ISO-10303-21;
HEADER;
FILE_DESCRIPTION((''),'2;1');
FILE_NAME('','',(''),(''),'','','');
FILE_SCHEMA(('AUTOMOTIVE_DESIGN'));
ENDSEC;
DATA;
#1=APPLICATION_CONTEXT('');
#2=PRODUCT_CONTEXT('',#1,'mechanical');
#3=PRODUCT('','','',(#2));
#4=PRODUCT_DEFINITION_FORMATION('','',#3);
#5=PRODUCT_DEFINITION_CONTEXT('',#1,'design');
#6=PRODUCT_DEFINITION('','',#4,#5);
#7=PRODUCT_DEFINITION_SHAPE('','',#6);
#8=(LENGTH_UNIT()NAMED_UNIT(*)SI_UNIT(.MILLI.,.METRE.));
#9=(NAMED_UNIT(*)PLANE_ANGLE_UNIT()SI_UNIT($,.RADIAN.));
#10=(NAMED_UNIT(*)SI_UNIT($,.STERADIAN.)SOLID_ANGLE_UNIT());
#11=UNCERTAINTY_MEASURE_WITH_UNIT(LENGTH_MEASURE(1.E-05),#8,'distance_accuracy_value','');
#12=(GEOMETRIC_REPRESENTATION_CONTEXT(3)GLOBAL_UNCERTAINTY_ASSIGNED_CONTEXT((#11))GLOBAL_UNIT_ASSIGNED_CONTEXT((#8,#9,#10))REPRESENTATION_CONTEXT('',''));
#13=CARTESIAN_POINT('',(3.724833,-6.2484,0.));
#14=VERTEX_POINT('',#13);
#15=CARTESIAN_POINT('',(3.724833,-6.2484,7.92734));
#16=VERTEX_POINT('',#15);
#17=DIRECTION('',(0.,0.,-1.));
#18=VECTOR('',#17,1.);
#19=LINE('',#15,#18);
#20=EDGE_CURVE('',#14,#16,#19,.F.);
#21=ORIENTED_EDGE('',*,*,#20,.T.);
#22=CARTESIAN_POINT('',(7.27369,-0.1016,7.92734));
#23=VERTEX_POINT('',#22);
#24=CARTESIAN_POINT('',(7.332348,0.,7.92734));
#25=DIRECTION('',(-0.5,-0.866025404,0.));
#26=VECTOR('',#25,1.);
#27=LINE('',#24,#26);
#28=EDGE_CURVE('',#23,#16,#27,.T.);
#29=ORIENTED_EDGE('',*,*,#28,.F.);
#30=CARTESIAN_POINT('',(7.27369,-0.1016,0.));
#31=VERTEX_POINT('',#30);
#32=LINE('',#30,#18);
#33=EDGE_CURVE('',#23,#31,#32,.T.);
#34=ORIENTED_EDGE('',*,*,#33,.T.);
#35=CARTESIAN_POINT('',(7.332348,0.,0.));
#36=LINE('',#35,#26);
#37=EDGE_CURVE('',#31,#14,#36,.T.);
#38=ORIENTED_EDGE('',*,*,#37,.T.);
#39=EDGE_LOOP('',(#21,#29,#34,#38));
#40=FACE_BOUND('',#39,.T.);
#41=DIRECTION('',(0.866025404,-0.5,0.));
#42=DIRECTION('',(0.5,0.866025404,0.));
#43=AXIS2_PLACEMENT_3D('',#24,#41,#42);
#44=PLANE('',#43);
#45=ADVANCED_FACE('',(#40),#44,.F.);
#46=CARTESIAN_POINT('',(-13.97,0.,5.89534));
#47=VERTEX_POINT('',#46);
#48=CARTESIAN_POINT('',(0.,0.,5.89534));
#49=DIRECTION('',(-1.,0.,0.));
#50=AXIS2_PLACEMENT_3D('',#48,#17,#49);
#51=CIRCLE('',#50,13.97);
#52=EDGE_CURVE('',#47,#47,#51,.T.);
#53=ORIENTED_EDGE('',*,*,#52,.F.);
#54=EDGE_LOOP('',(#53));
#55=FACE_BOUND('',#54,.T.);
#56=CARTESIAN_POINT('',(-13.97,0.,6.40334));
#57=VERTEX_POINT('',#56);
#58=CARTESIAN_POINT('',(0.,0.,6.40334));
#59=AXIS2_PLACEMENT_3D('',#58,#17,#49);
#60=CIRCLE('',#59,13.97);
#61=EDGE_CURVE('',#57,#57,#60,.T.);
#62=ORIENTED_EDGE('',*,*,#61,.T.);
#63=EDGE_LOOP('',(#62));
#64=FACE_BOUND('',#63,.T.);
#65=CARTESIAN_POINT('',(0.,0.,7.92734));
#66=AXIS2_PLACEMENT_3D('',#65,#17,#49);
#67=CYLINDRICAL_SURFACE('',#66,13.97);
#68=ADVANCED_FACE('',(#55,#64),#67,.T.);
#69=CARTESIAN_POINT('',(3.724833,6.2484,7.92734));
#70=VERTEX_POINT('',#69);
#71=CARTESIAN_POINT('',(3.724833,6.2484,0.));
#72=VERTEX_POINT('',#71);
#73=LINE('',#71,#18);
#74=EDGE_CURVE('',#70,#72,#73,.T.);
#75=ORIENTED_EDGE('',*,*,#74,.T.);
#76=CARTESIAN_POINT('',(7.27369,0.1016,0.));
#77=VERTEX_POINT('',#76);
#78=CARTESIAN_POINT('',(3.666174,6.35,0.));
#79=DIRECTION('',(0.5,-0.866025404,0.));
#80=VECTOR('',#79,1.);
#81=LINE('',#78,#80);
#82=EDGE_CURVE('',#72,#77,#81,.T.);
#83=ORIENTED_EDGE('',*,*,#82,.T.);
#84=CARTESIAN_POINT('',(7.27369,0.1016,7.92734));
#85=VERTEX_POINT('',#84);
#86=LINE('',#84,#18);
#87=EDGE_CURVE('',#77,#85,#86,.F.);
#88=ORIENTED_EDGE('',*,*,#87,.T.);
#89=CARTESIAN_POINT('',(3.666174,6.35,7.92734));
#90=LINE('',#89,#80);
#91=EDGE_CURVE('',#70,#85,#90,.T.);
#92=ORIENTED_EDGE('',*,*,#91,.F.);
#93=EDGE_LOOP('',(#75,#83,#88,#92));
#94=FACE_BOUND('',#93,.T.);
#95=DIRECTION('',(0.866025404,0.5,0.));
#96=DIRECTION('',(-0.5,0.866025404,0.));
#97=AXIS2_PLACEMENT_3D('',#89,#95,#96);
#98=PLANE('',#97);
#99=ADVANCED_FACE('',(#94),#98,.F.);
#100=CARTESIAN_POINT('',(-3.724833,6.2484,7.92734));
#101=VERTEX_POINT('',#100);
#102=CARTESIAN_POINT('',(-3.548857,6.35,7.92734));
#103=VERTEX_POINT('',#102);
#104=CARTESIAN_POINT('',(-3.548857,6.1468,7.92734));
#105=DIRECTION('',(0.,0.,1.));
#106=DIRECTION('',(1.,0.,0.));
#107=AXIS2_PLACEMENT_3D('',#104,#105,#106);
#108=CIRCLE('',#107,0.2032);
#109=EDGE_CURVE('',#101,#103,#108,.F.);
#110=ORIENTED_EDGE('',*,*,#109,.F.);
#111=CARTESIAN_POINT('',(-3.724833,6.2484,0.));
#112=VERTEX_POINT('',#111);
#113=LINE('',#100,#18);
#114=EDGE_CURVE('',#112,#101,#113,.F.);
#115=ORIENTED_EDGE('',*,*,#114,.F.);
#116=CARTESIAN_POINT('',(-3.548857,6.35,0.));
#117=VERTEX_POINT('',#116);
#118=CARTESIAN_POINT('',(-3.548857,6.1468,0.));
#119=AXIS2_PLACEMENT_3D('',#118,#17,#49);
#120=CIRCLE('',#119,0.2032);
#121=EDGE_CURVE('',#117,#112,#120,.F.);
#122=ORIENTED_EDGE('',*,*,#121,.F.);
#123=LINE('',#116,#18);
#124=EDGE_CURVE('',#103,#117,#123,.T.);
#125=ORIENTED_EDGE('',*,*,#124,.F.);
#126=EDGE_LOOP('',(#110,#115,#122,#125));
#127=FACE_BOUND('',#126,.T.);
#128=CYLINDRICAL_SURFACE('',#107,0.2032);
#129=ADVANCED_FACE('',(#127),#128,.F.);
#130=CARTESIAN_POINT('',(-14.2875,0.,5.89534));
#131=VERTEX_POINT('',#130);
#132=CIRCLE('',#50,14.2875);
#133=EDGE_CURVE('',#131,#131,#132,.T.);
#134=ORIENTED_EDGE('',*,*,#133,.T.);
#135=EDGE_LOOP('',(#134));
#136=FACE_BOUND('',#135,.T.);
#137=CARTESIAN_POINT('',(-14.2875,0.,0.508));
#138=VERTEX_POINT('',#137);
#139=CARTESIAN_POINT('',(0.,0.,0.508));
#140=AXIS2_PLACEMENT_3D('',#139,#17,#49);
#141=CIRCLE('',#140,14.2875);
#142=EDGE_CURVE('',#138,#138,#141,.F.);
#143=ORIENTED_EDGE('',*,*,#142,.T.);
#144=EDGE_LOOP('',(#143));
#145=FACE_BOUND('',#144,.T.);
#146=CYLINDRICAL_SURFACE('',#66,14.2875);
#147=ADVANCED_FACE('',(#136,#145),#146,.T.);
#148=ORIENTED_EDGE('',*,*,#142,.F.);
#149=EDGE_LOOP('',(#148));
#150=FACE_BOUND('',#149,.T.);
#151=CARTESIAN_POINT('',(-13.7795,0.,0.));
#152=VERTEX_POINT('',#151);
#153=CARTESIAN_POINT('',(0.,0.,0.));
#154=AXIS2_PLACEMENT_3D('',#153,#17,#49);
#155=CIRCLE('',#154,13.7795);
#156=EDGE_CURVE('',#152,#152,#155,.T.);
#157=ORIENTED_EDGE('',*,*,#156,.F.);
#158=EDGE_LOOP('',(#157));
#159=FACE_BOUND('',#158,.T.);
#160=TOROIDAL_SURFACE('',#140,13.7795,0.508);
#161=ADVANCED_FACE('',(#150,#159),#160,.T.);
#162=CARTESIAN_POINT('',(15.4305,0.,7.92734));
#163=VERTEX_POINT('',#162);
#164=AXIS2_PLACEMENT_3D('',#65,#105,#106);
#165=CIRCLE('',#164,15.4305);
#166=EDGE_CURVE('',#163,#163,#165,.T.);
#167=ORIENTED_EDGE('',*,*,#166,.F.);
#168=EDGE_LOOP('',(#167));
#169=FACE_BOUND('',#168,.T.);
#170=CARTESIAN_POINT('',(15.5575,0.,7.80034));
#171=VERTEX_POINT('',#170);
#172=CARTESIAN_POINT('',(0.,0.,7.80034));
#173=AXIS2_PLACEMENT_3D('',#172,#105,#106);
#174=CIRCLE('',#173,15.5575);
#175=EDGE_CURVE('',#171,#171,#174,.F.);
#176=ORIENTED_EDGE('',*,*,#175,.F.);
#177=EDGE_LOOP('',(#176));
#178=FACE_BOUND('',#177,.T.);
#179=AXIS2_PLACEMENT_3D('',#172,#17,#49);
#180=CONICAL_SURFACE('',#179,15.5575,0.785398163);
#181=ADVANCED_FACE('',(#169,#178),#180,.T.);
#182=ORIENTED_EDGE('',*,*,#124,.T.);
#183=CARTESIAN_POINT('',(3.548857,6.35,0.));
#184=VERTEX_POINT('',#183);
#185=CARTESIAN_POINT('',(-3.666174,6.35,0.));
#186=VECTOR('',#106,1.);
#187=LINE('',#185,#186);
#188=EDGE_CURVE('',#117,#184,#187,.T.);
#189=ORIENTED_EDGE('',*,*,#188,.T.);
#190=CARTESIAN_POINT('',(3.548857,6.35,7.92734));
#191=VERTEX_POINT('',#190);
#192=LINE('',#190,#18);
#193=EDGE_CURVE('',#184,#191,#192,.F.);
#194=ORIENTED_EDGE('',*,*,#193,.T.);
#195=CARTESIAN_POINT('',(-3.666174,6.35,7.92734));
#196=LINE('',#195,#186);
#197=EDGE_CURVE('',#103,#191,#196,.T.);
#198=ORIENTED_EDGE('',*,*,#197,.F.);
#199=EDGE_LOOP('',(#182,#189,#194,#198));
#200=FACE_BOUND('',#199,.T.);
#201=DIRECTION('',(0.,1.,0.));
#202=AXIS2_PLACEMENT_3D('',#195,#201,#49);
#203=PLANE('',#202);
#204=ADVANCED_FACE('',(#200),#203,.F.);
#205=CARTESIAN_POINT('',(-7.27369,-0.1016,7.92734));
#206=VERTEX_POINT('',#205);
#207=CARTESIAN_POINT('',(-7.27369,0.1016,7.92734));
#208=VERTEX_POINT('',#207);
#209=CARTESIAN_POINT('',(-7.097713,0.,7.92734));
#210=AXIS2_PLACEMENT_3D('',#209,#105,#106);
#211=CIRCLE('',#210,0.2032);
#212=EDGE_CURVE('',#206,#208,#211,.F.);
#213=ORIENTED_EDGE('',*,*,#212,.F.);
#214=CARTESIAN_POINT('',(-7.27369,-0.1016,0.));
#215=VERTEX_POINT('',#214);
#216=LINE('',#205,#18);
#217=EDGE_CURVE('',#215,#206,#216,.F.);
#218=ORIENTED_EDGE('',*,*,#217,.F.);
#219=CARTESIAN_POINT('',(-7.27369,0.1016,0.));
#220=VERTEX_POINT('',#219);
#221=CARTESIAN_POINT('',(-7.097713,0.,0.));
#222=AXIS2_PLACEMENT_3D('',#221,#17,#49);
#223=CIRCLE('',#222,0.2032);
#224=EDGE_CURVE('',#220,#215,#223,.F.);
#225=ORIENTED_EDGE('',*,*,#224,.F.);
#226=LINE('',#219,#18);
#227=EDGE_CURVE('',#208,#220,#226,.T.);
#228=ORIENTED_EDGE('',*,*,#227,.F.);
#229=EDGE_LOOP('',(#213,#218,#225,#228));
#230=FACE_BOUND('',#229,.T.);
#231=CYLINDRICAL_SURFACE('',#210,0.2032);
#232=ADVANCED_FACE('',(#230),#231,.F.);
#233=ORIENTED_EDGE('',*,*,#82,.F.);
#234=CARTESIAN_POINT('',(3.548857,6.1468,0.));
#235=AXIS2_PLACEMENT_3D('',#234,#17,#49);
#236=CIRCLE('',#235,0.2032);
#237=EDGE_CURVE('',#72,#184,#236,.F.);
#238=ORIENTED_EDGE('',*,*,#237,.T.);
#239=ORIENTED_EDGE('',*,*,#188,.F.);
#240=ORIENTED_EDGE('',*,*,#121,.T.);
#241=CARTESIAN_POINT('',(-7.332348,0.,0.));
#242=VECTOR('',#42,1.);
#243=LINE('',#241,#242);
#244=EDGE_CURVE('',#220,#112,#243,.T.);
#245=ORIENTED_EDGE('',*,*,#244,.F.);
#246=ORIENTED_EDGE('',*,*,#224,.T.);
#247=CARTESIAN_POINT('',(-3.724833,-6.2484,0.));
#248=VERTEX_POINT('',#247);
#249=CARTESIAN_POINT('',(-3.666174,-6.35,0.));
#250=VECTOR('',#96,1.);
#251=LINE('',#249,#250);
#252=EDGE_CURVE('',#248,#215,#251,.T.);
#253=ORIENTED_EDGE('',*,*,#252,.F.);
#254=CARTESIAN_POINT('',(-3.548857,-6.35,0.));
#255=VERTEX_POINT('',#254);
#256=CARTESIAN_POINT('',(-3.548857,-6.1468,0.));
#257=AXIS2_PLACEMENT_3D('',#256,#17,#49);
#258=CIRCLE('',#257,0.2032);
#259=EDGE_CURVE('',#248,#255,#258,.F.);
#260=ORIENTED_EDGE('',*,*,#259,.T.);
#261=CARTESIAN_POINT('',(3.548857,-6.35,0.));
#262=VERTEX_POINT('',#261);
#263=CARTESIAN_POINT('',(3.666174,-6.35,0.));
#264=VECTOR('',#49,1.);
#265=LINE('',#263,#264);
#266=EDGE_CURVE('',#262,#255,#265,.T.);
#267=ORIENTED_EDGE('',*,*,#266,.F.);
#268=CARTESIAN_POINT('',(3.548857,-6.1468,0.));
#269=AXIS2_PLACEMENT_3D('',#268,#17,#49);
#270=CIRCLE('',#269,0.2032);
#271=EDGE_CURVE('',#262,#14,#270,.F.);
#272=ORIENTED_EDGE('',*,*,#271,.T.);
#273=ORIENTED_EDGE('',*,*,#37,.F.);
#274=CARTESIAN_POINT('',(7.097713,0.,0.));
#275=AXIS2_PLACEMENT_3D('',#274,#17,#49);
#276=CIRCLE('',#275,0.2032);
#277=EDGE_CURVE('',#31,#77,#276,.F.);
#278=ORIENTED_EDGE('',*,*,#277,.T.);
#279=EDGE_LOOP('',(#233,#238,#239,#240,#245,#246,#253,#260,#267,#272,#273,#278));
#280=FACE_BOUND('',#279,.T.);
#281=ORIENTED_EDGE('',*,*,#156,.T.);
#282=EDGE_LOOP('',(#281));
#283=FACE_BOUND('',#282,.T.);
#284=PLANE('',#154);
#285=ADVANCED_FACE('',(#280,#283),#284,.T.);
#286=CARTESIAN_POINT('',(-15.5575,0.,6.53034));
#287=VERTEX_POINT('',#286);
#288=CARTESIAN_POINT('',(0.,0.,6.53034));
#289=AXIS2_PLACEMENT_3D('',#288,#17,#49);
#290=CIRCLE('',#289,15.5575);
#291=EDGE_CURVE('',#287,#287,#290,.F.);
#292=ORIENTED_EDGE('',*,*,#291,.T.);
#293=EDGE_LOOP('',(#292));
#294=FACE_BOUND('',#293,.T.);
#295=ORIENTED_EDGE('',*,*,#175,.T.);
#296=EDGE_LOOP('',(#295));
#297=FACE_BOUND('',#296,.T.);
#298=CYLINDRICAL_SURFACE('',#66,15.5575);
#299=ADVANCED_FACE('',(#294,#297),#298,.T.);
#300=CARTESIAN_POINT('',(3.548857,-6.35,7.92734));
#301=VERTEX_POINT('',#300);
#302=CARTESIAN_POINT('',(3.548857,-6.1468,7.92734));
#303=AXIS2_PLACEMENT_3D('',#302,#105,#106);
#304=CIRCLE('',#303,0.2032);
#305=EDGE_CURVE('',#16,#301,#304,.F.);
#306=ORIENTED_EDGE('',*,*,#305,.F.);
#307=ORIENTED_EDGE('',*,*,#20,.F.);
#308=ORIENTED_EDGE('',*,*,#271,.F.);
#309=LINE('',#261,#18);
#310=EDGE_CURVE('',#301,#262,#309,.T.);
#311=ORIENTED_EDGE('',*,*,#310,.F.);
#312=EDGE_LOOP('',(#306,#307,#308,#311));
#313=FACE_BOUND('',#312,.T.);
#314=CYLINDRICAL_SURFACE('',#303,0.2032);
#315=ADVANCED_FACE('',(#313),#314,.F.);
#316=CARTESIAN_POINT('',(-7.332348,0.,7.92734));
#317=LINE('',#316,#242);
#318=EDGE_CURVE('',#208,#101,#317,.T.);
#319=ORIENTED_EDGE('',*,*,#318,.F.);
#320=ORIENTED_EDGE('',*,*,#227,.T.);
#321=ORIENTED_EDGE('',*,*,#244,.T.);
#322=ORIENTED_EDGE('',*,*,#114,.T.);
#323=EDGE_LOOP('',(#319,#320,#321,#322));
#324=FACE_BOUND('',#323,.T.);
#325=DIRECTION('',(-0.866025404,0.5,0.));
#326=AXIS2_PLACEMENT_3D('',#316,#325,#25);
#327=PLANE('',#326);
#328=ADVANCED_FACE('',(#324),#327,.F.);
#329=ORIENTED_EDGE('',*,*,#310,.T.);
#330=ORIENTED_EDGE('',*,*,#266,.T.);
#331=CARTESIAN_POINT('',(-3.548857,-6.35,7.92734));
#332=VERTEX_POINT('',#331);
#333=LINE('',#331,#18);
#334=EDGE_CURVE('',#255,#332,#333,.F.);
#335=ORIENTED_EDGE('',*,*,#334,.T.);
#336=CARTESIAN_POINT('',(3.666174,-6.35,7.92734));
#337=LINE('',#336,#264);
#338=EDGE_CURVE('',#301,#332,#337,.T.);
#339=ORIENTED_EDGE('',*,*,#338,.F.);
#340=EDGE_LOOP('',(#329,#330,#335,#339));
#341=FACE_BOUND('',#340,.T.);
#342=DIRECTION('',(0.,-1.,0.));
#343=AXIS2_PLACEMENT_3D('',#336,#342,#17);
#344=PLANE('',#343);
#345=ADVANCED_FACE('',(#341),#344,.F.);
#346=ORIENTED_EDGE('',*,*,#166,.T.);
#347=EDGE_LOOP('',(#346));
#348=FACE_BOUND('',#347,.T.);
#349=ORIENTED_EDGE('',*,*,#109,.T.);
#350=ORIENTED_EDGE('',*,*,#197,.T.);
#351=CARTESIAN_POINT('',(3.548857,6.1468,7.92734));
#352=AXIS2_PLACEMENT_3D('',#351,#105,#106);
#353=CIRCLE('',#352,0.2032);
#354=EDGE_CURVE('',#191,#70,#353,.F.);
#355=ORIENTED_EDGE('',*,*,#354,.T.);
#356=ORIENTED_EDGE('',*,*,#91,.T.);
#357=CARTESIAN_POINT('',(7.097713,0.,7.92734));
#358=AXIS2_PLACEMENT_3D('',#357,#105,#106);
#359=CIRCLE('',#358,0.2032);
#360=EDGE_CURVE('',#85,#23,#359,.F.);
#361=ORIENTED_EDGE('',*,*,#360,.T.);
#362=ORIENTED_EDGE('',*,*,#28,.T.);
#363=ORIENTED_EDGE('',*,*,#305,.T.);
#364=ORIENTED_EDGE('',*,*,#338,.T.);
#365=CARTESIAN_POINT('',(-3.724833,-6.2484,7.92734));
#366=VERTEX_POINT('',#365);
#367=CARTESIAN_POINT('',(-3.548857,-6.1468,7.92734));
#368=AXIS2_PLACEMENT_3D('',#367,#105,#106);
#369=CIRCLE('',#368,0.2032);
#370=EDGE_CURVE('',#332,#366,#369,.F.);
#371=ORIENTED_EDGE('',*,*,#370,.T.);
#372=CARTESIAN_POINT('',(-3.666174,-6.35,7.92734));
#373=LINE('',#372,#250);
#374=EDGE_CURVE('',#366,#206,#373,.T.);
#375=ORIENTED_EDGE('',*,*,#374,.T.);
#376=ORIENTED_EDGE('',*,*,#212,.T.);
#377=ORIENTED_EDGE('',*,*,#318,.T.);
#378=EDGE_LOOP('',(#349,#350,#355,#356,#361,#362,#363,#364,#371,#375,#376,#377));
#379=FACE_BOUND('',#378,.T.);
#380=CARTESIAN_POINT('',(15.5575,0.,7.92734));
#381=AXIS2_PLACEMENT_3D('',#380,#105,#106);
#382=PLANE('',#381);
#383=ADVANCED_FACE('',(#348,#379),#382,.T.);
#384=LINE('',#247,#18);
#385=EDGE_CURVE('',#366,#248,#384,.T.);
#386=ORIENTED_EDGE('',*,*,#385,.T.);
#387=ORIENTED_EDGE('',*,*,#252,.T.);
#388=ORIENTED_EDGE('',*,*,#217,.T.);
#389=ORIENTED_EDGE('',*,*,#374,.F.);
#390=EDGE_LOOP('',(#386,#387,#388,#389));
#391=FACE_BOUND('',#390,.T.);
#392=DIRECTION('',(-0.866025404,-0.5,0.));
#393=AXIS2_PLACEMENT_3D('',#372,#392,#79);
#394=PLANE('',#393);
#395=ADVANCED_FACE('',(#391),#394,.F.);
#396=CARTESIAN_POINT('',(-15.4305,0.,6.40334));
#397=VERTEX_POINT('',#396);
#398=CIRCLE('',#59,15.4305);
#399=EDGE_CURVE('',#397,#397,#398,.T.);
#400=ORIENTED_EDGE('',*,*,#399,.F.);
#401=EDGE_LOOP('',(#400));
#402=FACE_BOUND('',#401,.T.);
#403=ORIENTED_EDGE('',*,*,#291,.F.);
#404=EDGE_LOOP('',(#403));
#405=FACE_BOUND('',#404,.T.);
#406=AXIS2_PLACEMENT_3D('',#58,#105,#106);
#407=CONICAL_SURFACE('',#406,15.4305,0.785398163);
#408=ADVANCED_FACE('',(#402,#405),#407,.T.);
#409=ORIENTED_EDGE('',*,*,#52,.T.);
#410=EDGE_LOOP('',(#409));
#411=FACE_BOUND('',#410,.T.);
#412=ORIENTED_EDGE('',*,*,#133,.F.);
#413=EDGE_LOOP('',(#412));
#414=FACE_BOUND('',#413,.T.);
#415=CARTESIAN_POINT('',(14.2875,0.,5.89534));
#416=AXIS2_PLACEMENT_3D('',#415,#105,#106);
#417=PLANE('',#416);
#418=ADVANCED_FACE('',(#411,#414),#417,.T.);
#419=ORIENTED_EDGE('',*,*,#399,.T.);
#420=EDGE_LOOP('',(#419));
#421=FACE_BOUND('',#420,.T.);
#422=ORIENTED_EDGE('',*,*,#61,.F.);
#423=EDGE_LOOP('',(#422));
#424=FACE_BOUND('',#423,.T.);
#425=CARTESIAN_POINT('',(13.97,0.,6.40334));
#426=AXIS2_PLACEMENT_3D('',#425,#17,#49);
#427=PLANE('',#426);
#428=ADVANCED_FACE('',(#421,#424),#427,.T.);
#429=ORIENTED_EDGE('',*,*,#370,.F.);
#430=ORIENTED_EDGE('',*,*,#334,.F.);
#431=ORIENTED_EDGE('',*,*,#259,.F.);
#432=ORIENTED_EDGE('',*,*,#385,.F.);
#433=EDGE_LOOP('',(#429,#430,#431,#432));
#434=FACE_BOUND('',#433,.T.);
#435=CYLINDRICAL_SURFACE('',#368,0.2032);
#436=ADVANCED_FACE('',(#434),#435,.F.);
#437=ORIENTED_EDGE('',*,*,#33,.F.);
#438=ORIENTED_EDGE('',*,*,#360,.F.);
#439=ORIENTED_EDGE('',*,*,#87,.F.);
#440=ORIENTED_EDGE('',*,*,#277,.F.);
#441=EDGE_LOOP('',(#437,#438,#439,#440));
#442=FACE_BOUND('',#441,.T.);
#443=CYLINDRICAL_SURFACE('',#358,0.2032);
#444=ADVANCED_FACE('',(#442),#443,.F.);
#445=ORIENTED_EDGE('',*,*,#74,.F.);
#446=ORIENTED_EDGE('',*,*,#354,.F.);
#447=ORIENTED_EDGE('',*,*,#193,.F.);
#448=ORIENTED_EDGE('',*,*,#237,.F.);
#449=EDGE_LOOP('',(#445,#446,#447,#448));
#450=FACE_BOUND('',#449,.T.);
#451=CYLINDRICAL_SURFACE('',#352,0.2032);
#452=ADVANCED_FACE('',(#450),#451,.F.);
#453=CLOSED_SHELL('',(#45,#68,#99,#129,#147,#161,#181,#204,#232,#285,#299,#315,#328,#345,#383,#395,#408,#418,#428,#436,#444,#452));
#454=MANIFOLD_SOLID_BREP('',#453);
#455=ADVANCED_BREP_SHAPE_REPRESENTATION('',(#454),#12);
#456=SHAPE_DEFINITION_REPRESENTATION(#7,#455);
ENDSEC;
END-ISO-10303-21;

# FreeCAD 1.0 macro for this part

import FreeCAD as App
import Part
import Sketcher
Q = App.Units.Quantity


def edges_at(feature, points):
    """Names of the edges that pass closest to the given points."""
    edges = feature.Shape.Edges
    near = lambda p: min(range(len(edges)), key=lambda i: edges[i].distToShape(Part.Vertex(*p))[0])
    return sorted({f"Edge{near(p) + 1}" for p in points})


def add_polygon(sketch, points):
    """Adds a closed chain of lines whose ends are joined by coincident constraints."""
    first, n = sketch.GeometryCount, len(points)
    for a, b in zip(points, points[1:] + points[:1]):
        sketch.addGeometry(Part.LineSegment(App.Vector(*a, 0), App.Vector(*b, 0)), False)
    for i in range(n):
        sketch.addConstraint(Sketcher.Constraint("Coincident", first + i, 2, first + (i + 1) % n, 1))

doc = App.newDocument("Part")
body = doc.addObject("PartDesign::Body", "Body")

sketch1 = body.newObject("Sketcher::SketchObject", "Sketch")
sketch1.AttachmentSupport = (doc.getObject("XZ_Plane"), [""])
sketch1.MapMode = "FlatFace"
add_polygon(sketch1, [(15.56, 7.93), (0, 7.93), (0, 0), (14.29, 0), (14.29, 5.9), (13.97, 5.9), (13.97, 6.4), (15.56, 6.4)])
sketch1.addConstraint(Sketcher.Constraint("Horizontal", 0))
sketch1.addConstraint(Sketcher.Constraint("Vertical", 1))
sketch1.addConstraint(Sketcher.Constraint("Horizontal", 2))
sketch1.addConstraint(Sketcher.Constraint("Vertical", 3))
sketch1.addConstraint(Sketcher.Constraint("Horizontal", 4))
sketch1.addConstraint(Sketcher.Constraint("Vertical", 5))
sketch1.addConstraint(Sketcher.Constraint("Horizontal", 6))
sketch1.addConstraint(Sketcher.Constraint("Vertical", 7))
sketch1.addConstraint(Sketcher.Constraint("Coincident", 1, 2, -1, 1))
sketch1.addConstraint(Sketcher.Constraint("DistanceY", 5, 1, 5, 2, Q("0.02 in")))
sketch1.addConstraint(Sketcher.Constraint("DistanceY", 7, 1, 7, 2, Q("0.06 in")))
sketch1.addConstraint(Sketcher.Constraint("DistanceX", 2, 1, 2, 2, Q("0.5625 in")))
sketch1.addConstraint(Sketcher.Constraint("DistanceX", 6, 1, 6, 2, Q("0.0625 in")))
sketch1.addConstraint(Sketcher.Constraint("DistanceX", -1, 1, 4, 2, Q("0.55 in")))
sketch1.addConstraint(Sketcher.Constraint("DistanceY", 1, 2, 1, 1, Q("0.3121 in")))
revolution = body.newObject("PartDesign::Revolution", "Revolution")
revolution.Profile = sketch1
revolution.ReferenceAxis = (sketch1, ["V_Axis"])
revolution.Angle = 360

sketch2 = body.newObject("Sketcher::SketchObject", "Sketch001")
sketch2.AttachmentSupport = (doc.getObject("XY_Plane"), [""])
sketch2.MapMode = "FlatFace"
add_polygon(sketch2, [(-4, 6), (4, 6), (7, 0), (4, -6), (-4, -6), (-7, 0)])
sketch2.addConstraint(Sketcher.Constraint("Horizontal", 0))
sketch2.addConstraint(Sketcher.Constraint("Horizontal", 3))
sketch2.addConstraint(Sketcher.Constraint("Symmetric", 0, 2, 3, 2, -1, 1))
sketch2.addConstraint(Sketcher.Constraint("Symmetric", 1, 2, 4, 2, -1, 1))
sketch2.addConstraint(Sketcher.Constraint("PointOnObject", 1, 2, -1))
sketch2.addConstraint(Sketcher.Constraint("Parallel", 2, 5))
sketch2.addConstraint(Sketcher.Constraint("Vertical", 0, 2, 2, 2))
sketch2.addConstraint(Sketcher.Constraint("Angle", 1, Q("-60 deg")))
sketch2.addConstraint(Sketcher.Constraint("DistanceY", 2, 2, 0, 2, Q("0.5 in")))
sketch2.addConstraint(Sketcher.Constraint("DistanceX", 0, 1, 0, 2, Q("7.332348 mm")))
pocket1 = body.newObject("PartDesign::Pocket", "Pocket")
pocket1.Profile = sketch2
pocket1.Type = "ThroughAll"
pocket1.Reversed = True
doc.recompute()

chamfer = body.newObject("PartDesign::Chamfer", "Chamfer")
chamfer.Base = (pocket1, edges_at(pocket1, [(-15.557, 0, 6.403)]))
chamfer.Size = Q("0.005 in")
doc.recompute()

chamfer2 = body.newObject("PartDesign::Chamfer", "Chamfer001")
chamfer2.Base = (chamfer, edges_at(chamfer, [(-15.557, 0, 7.927)]))
chamfer2.Size = Q("0.005 in")
doc.recompute()

fillet = body.newObject("PartDesign::Fillet", "Fillet")
fillet.Base = (chamfer2, edges_at(chamfer2, [(-14.287, 0, 0)]))
fillet.Radius = Q("0.02 in")
doc.recompute()

fillet2 = body.newObject("PartDesign::Fillet", "Fillet001")
fillet2.Base = (fillet, edges_at(fillet, [
    (-3.666, 6.35, 3.964),
    (-7.332, 0, 3.964),
    (-3.666, -6.35, 3.964),
    (3.666, -6.35, 3.964),
    (7.332, 0, 3.964),
    (3.666, 6.35, 3.964),
]))
fillet2.Radius = Q("0.008 in")

doc.recompute()
